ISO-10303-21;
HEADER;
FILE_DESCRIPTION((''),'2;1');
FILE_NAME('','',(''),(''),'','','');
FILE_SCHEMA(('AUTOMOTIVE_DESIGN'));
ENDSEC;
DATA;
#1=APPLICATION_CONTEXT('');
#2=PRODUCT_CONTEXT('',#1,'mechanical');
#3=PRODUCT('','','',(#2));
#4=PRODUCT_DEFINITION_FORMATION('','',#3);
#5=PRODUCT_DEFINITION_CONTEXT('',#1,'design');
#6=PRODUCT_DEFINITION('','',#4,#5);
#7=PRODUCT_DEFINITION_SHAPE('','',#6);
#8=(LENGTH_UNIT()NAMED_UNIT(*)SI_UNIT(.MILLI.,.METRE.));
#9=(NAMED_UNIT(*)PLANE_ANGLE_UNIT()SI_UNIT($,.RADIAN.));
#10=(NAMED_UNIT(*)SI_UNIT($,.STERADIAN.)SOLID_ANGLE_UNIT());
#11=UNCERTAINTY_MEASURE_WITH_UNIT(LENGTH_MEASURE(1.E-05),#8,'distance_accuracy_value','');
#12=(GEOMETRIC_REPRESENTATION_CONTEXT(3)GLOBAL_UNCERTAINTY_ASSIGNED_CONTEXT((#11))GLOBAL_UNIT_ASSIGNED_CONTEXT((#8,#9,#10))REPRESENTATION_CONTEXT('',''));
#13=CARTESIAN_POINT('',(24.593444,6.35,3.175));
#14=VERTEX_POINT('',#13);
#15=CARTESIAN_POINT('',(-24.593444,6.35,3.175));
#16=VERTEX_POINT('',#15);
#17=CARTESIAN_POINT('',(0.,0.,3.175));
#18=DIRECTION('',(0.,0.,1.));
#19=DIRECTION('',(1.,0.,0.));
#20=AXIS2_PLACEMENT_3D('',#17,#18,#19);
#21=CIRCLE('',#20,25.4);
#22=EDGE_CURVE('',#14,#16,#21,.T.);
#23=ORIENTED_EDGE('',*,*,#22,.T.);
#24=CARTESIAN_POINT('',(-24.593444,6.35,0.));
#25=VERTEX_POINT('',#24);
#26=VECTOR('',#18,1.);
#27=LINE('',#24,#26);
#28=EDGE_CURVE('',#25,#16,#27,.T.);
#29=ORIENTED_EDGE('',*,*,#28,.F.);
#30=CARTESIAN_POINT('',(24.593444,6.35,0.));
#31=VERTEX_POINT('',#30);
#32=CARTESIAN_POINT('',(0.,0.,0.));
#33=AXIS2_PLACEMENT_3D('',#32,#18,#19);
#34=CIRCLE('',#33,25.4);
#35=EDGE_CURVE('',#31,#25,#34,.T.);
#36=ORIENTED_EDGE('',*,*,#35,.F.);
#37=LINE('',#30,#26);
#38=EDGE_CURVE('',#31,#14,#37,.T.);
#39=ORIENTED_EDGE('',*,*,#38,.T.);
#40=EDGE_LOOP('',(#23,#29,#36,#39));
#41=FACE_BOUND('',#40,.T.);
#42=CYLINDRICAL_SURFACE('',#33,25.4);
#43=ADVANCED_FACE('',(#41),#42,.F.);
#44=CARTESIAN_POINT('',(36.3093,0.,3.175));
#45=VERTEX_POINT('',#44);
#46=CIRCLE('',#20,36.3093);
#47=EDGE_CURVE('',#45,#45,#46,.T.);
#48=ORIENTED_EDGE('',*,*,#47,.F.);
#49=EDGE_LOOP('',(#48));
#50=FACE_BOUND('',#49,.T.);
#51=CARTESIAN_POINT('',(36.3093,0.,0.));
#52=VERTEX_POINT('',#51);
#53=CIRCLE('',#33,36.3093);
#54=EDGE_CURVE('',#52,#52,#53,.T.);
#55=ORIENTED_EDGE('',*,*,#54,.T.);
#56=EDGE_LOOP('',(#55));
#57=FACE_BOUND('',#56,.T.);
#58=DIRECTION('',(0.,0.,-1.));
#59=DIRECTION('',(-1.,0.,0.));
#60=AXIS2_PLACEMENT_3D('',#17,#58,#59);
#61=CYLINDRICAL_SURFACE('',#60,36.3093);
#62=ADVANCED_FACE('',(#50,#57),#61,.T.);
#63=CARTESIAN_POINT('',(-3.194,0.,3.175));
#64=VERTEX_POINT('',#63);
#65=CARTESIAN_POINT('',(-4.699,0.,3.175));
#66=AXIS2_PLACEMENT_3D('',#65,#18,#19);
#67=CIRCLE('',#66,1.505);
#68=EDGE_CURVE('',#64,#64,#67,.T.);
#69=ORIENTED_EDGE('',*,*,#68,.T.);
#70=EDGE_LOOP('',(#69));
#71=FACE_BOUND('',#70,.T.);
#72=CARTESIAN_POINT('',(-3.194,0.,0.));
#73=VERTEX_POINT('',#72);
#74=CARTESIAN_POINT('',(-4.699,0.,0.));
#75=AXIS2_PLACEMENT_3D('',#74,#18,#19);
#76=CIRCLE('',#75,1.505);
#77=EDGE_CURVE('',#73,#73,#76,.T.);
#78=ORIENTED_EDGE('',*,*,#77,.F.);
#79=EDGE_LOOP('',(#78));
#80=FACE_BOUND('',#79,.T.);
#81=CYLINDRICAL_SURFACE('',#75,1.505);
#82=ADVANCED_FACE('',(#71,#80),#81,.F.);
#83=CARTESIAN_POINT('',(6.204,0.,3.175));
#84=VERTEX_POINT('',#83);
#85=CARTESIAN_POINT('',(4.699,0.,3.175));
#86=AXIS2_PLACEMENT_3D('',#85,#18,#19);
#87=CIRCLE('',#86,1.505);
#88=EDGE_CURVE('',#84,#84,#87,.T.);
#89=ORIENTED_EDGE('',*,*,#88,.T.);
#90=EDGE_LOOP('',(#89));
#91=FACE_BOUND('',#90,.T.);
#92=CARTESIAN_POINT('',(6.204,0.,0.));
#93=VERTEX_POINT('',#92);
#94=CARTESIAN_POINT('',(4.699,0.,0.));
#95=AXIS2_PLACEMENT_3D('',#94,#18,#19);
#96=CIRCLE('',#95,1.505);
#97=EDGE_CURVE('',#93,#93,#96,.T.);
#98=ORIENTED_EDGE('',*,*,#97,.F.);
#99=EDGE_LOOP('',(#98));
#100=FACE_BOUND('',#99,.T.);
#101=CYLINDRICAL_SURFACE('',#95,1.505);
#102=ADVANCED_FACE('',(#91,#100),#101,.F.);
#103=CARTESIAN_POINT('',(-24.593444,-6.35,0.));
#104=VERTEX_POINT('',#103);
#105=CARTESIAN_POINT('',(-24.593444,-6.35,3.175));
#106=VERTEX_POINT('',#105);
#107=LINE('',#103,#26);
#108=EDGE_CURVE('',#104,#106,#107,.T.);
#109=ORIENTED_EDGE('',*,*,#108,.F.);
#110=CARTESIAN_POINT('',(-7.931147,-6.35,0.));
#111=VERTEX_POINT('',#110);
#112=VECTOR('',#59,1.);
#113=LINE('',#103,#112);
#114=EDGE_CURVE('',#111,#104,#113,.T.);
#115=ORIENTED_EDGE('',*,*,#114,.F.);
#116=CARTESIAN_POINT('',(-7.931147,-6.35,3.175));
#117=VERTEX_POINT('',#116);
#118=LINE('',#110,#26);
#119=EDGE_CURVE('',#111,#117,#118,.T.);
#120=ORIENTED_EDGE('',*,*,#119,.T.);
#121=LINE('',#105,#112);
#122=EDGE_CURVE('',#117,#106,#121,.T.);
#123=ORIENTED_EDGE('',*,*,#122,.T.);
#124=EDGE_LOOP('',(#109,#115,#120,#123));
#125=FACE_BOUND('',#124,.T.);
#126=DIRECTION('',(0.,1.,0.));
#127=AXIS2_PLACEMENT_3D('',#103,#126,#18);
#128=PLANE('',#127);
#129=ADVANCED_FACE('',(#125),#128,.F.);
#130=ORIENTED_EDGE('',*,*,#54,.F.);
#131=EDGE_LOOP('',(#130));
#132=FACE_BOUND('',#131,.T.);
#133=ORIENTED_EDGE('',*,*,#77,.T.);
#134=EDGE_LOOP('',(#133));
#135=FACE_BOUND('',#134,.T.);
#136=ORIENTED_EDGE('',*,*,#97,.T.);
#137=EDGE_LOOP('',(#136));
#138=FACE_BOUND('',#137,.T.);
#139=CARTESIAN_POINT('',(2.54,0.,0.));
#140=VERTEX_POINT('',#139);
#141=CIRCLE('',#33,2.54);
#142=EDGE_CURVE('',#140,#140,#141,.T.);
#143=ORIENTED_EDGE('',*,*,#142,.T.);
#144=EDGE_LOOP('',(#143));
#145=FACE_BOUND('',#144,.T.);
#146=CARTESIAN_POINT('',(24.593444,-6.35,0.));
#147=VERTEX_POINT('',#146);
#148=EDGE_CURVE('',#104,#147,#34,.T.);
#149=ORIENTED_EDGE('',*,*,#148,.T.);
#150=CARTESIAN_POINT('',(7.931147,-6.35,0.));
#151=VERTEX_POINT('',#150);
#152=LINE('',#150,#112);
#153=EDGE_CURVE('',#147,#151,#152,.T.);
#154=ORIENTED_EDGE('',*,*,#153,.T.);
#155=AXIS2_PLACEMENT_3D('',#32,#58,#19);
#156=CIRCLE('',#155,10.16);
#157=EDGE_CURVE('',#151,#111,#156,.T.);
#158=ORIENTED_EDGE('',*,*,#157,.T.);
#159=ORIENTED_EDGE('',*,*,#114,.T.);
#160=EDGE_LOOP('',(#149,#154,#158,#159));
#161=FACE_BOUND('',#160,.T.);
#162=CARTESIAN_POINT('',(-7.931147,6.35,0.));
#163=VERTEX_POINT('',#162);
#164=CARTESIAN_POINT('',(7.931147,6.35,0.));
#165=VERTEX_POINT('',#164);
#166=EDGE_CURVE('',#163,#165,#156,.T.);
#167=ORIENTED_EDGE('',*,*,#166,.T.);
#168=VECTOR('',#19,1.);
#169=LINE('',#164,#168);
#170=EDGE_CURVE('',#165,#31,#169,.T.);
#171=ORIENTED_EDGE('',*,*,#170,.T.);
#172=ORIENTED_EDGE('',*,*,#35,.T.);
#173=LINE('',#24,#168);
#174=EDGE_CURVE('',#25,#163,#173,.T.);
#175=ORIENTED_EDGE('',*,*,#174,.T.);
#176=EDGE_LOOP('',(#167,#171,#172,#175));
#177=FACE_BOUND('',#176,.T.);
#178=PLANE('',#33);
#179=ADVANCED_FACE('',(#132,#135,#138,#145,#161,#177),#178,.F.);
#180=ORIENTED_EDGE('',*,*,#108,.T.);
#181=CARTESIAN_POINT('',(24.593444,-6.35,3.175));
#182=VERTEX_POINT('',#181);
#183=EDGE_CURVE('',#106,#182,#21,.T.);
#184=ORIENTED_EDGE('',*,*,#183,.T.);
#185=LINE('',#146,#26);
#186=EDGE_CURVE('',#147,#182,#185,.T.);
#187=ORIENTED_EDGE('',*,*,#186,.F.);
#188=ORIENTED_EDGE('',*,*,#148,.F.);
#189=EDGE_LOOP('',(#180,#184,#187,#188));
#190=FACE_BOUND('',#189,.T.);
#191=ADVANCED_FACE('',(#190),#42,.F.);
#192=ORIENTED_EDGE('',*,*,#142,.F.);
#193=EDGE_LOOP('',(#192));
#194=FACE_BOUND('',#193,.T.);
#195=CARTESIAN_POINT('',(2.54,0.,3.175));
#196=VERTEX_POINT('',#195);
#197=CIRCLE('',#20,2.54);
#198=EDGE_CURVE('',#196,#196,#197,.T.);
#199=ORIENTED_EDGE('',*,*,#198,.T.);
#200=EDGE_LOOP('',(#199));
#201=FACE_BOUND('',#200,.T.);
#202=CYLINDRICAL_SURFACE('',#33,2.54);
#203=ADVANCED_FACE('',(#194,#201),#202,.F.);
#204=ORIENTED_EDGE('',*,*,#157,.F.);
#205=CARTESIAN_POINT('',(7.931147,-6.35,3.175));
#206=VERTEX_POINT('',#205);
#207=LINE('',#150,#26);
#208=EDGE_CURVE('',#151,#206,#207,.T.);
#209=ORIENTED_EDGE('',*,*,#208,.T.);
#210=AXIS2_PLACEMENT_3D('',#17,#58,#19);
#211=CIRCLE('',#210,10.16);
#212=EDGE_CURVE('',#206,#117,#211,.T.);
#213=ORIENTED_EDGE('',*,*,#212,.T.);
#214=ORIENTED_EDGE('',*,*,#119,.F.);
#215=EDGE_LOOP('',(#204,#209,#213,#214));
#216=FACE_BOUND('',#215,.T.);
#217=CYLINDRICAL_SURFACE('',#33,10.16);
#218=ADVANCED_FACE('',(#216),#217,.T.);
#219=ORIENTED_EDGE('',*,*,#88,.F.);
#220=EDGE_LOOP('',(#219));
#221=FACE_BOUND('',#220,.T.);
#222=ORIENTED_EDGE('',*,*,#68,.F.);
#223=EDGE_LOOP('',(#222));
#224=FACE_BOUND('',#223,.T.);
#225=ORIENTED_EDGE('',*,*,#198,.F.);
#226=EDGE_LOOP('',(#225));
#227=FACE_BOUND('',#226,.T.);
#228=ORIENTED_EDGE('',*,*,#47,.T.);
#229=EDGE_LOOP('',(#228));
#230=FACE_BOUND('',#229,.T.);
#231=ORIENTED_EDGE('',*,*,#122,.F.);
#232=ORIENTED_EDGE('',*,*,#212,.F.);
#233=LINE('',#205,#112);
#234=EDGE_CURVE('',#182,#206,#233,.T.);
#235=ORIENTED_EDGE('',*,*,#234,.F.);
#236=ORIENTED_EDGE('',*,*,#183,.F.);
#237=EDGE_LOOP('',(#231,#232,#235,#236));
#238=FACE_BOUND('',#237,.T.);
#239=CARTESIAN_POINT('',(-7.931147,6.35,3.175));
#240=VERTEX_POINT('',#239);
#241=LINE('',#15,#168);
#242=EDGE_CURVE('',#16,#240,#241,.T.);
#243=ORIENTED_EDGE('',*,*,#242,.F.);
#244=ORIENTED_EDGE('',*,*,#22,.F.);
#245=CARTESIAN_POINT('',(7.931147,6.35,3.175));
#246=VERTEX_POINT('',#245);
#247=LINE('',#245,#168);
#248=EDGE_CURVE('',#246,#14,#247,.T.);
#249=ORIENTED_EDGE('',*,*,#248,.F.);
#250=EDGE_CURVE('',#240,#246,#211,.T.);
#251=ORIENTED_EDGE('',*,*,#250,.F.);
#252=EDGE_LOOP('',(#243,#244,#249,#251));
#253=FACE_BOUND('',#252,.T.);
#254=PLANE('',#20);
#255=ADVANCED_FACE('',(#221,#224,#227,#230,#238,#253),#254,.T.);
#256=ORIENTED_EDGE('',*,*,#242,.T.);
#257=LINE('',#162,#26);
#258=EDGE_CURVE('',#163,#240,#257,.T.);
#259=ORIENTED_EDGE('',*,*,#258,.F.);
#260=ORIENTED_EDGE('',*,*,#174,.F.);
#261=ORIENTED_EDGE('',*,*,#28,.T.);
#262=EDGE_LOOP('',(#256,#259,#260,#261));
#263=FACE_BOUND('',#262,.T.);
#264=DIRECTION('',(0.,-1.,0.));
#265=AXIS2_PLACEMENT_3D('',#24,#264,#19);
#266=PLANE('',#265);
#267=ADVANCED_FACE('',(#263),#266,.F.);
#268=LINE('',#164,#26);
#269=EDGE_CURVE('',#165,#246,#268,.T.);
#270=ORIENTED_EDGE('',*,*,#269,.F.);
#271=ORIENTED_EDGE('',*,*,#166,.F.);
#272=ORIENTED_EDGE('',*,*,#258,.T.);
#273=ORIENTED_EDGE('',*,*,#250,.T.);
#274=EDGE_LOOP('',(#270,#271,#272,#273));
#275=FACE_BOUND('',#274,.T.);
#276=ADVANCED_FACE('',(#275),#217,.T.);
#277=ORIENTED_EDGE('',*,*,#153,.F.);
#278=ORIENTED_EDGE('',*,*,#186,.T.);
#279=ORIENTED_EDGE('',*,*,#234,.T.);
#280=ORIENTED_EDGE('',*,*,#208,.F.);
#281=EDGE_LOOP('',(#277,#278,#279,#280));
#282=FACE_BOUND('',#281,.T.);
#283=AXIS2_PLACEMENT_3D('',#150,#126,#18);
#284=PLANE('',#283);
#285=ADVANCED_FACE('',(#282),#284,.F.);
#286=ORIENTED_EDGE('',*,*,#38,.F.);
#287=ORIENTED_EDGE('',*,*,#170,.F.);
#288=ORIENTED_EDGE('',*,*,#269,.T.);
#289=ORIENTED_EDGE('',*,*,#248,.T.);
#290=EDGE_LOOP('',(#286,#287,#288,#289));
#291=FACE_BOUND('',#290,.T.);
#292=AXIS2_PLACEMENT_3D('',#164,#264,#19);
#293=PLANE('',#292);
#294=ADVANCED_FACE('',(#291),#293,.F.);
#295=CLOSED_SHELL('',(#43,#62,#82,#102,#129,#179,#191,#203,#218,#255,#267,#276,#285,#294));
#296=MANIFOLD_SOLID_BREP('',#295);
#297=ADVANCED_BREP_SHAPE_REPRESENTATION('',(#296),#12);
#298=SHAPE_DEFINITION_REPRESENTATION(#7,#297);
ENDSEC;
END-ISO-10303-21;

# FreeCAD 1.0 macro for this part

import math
import FreeCAD as App
import Part
import Sketcher
Q = App.Units.Quantity

doc = App.newDocument("Part")
body = doc.addObject("PartDesign::Body", "Body")

sketch1 = body.newObject("Sketcher::SketchObject", "Sketch")
sketch1.AttachmentSupport = (doc.getObject("XY_Plane"), [""])
sketch1.MapMode = "FlatFace"
sketch1.addGeometry(Part.Circle(App.Vector(0, 0, 0), App.Vector(0, 0, 1), 36.3093), False)
sketch1.addConstraint([
    Sketcher.Constraint("Coincident", 0, 3, -1, 1),
    Sketcher.Constraint("Diameter", 0, Q("2.859 in")),
])
pad1 = body.newObject("PartDesign::Pad", "Pad")
pad1.Profile = sketch1
pad1.Length = Q("0.125 in")

sketch2 = body.newObject("Sketcher::SketchObject", "Sketch001")
sketch2.AttachmentSupport = (doc.getObject("XY_Plane"), [""])
sketch2.MapMode = "FlatFace"
sketch2.AttachmentOffset = App.Placement(App.Vector(0, 0, 0.125 * 25.4), App.Rotation())
sketch2.addGeometry([
    Part.LineSegment(App.Vector(-7.931147, -6.35, 0), App.Vector(-24.593444, -6.35, 0)),
    Part.ArcOfCircle(Part.Circle(App.Vector(0, 0, 0), App.Vector(0, 0, 1), 25.4), math.radians(-165.522488), math.radians(-14.477512)),
    Part.LineSegment(App.Vector(24.593444, -6.35, 0), App.Vector(7.931147, -6.35, 0)),
    Part.ArcOfCircle(Part.Circle(App.Vector(0, 0, 0), App.Vector(0, 0, 1), 10.16), math.radians(-141.317813), math.radians(-38.682187)),
    Part.LineSegment(App.Vector(7.931147, 6.35, 0), App.Vector(24.593444, 6.35, 0)),
    Part.ArcOfCircle(Part.Circle(App.Vector(0, 0, 0), App.Vector(0, 0, 1), 25.4), math.radians(14.477512), math.radians(165.522488)),
    Part.LineSegment(App.Vector(-24.593444, 6.35, 0), App.Vector(-7.931147, 6.35, 0)),
    Part.ArcOfCircle(Part.Circle(App.Vector(0, 0, 0), App.Vector(0, 0, 1), 10.16), math.radians(38.682187), math.radians(141.317813)),
], False)
sketch2.addConstraint([
    Sketcher.Constraint("Coincident", 0, 2, 1, 1),
    Sketcher.Constraint("Coincident", 1, 2, 2, 1),
    Sketcher.Constraint("Coincident", 2, 2, 3, 2),
    Sketcher.Constraint("Coincident", 3, 1, 0, 1),
    Sketcher.Constraint("Coincident", 4, 2, 5, 1),
    Sketcher.Constraint("Coincident", 5, 2, 6, 1),
    Sketcher.Constraint("Coincident", 6, 2, 7, 2),
    Sketcher.Constraint("Coincident", 7, 1, 4, 1),
    Sketcher.Constraint("Horizontal", 0),
    Sketcher.Constraint("Horizontal", 2),
    Sketcher.Constraint("Horizontal", 4),
    Sketcher.Constraint("Horizontal", 6),
    Sketcher.Constraint("Coincident", 1, 3, -1, 1),
    Sketcher.Constraint("Coincident", 3, 3, -1, 1),
    Sketcher.Constraint("Coincident", 5, 3, -1, 1),
    Sketcher.Constraint("Coincident", 7, 3, -1, 1),
    Sketcher.Constraint("Equal", 1, 5),
    Sketcher.Constraint("Equal", 3, 7),
    Sketcher.Constraint("Horizontal", 0, 2, 1, 2),
    Sketcher.Constraint("Horizontal", 4, 2, 5, 2),
    Sketcher.Constraint("Vertical", 1, 2, 4, 2),
    Sketcher.Constraint("Radius", 1, Q("1 in")),
    Sketcher.Constraint("Radius", 3, Q("0.4 in")),
    Sketcher.Constraint("DistanceY", 1, 2, 4, 2, Q("0.5 in")),
])
pocket1 = body.newObject("PartDesign::Pocket", "Pocket")
pocket1.Profile = sketch2
pocket1.Type = "ThroughAll"

sketch3 = body.newObject("Sketcher::SketchObject", "Sketch002")
sketch3.AttachmentSupport = (doc.getObject("XY_Plane"), [""])
sketch3.MapMode = "FlatFace"
sketch3.AttachmentOffset = App.Placement(App.Vector(0, 0, 0.125 * 25.4), App.Rotation())
sketch3.addGeometry([
    Part.Circle(App.Vector(-4.699, 0, 0), App.Vector(0, 0, 1), 1.505),
    Part.Circle(App.Vector(4.699, 0, 0), App.Vector(0, 0, 1), 1.505),
    Part.Circle(App.Vector(0, 0, 0), App.Vector(0, 0, 1), 2.54),
], False)
sketch3.addConstraint([
    Sketcher.Constraint("Coincident", 2, 3, -1, 1),
    Sketcher.Constraint("Equal", 0, 1),
    Sketcher.Constraint("Symmetric", 0, 3, 1, 3, -1, 1),
    Sketcher.Constraint("PointOnObject", 0, 3, -1),
    Sketcher.Constraint("Diameter", 2, Q("0.2 in")),
    Sketcher.Constraint("Diameter", 0, 3.01),
    Sketcher.Constraint("DistanceX", 0, 3, 1, 3, Q("0.37 in")),
])
pocket2 = body.newObject("PartDesign::Pocket", "Pocket001")
pocket2.Profile = sketch3
pocket2.Type = "ThroughAll"

doc.recompute()
